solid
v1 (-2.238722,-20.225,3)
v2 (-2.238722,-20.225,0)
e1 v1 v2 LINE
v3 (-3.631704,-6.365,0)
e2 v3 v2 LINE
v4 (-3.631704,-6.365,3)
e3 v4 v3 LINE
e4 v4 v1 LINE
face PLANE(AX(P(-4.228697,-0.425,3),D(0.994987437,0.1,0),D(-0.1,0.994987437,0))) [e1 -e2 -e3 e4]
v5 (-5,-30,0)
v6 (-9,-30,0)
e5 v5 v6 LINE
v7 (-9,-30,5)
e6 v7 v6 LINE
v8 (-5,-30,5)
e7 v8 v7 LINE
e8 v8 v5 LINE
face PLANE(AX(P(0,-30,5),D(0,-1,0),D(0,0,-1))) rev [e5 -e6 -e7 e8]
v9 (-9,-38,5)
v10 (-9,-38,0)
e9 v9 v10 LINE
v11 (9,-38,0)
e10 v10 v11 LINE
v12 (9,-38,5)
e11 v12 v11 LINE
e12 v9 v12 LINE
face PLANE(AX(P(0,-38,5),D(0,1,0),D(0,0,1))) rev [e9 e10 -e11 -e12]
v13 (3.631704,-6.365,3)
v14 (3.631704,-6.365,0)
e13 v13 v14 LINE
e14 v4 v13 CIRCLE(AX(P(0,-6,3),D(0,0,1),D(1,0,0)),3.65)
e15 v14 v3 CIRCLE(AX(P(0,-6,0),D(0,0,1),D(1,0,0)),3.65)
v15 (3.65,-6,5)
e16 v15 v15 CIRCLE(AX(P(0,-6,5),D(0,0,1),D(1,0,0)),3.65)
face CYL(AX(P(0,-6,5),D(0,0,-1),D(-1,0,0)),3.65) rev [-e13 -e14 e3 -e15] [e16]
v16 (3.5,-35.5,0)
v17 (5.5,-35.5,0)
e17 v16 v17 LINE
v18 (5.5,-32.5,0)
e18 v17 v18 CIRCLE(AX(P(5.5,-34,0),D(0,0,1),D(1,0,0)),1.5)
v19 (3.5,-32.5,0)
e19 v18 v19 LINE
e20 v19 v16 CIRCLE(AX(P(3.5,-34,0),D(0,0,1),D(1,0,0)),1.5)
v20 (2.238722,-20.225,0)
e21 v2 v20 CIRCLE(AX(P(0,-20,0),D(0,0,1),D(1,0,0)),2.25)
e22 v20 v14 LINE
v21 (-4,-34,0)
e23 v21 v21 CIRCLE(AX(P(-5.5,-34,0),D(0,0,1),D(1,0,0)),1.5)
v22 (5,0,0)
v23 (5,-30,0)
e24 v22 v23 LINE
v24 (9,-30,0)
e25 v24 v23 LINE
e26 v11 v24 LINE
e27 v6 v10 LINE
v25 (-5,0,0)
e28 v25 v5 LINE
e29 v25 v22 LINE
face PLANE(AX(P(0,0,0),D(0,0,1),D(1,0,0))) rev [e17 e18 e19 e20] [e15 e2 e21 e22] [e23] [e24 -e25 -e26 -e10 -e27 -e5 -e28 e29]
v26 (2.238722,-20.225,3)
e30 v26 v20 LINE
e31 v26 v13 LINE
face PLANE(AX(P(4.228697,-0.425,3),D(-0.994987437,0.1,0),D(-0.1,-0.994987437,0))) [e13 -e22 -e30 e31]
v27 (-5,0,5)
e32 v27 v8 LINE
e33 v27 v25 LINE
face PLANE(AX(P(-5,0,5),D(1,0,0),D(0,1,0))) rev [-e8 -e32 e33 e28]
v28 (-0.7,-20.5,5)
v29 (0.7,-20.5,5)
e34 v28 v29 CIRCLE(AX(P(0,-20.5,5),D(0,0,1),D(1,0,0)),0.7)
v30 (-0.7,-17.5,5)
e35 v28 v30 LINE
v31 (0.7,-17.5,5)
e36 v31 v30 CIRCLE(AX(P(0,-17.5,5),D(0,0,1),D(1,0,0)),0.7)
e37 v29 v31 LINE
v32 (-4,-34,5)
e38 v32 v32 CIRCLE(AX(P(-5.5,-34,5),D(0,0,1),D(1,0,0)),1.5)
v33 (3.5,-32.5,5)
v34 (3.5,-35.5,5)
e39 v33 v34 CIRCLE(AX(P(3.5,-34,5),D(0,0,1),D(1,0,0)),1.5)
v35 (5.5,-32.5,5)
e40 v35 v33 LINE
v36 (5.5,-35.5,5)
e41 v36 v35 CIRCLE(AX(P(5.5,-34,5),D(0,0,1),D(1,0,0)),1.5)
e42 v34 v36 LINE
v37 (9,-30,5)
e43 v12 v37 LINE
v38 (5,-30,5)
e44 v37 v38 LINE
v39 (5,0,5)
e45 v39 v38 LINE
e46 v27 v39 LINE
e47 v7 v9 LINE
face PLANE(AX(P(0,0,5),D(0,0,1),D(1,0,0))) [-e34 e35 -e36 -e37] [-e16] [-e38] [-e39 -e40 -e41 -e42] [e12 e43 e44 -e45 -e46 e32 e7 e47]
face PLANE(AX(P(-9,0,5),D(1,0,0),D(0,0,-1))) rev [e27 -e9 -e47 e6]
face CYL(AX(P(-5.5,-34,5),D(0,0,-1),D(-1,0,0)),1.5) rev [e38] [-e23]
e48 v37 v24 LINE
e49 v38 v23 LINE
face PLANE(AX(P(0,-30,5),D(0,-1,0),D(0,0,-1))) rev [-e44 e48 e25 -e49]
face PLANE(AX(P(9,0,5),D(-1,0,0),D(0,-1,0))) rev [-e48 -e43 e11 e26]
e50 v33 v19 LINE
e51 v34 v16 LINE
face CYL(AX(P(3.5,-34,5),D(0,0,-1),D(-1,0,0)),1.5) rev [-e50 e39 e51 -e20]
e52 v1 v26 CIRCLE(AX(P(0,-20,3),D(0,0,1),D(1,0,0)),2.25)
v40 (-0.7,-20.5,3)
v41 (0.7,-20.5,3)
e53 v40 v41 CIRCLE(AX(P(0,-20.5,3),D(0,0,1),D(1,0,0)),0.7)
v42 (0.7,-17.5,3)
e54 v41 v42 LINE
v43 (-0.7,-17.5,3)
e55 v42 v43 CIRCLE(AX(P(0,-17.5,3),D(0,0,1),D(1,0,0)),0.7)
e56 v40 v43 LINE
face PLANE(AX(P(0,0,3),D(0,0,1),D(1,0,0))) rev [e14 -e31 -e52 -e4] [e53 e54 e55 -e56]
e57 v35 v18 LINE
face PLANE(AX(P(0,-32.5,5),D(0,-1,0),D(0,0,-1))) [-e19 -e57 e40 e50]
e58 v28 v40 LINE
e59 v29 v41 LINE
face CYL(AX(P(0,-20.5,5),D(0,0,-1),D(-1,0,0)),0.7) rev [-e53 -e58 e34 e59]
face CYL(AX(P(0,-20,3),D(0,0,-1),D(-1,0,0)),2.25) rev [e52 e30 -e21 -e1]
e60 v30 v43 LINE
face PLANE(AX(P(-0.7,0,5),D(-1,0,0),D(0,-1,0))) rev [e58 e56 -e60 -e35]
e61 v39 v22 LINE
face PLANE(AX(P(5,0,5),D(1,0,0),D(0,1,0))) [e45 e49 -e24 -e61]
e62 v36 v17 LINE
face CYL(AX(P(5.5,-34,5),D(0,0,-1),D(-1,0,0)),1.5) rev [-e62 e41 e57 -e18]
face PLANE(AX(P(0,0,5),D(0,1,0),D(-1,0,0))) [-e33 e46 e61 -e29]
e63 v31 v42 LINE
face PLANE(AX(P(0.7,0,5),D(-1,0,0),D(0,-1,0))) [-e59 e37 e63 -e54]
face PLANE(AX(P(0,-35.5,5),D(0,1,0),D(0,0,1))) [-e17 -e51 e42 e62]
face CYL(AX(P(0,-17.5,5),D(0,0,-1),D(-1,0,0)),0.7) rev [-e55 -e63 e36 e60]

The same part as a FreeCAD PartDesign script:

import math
import FreeCAD as App
import Part
import Sketcher
from FreeCAD import Vector

doc = App.newDocument("Part")
body = doc.addObject("PartDesign::Body", "Body")

sketch1 = doc.addObject("Sketcher::SketchObject", "Sketch")
body.addObject(sketch1)
sketch1.AttachmentSupport = (doc.XY_Plane, [""])
sketch1.MapMode = "FlatFace"
sketch1.addGeometry([
    Part.LineSegment(Vector(-5, 0, 0), Vector(-5, -30, 0)),
    Part.LineSegment(Vector(-5, -30, 0), Vector(-9, -30, 0)),
    Part.LineSegment(Vector(-9, -30, 0), Vector(-9, -38, 0)),
    Part.LineSegment(Vector(-9, -38, 0), Vector(9, -38, 0)),
    Part.LineSegment(Vector(9, -38, 0), Vector(9, -30, 0)),
    Part.LineSegment(Vector(9, -30, 0), Vector(5, -30, 0)),
    Part.LineSegment(Vector(5, -30, 0), Vector(5, 0, 0)),
    Part.LineSegment(Vector(5, 0, 0), Vector(-5, 0, 0)),
    Part.Circle(Vector(-5.5, -34, 0), Vector(0, 0, 1), 1.5),
    Part.LineSegment(Vector(3.5, -32.5, 0), Vector(5.5, -32.5, 0)),
    Part.ArcOfCircle(Part.Circle(Vector(5.5, -34, 0), Vector(0, 0, 1), 1.5), math.radians(-90), math.radians(90)),
    Part.LineSegment(Vector(5.5, -35.5, 0), Vector(3.5, -35.5, 0)),
    Part.ArcOfCircle(Part.Circle(Vector(3.5, -34, 0), Vector(0, 0, 1), 1.5), math.radians(90), math.radians(270)),
    Part.ArcOfCircle(Part.Circle(Vector(0, -20.5, 0), Vector(0, 0, 1), 0.7), math.radians(180), math.radians(360)),
    Part.LineSegment(Vector(-0.7, -20.5, 0), Vector(-0.7, -17.5, 0)),
    Part.ArcOfCircle(Part.Circle(Vector(0, -17.5, 0), Vector(0, 0, 1), 0.7), math.radians(0), math.radians(180)),
    Part.LineSegment(Vector(0.7, -17.5, 0), Vector(0.7, -20.5, 0)),
    Part.Circle(Vector(0, -6, 0), Vector(0, 0, 1), 3.6),
], False)
sketch1.addConstraint([
    Sketcher.Constraint("Coincident", 0, 2, 1, 1),
    Sketcher.Constraint("Coincident", 1, 2, 2, 1),
    Sketcher.Constraint("Coincident", 2, 2, 3, 1),
    Sketcher.Constraint("Coincident", 3, 2, 4, 1),
    Sketcher.Constraint("Coincident", 4, 2, 5, 1),
    Sketcher.Constraint("Coincident", 5, 2, 6, 1),
    Sketcher.Constraint("Coincident", 6, 2, 7, 1),
    Sketcher.Constraint("Coincident", 7, 2, 0, 1),
    Sketcher.Constraint("Tangent", 9, 2, 10, 2),
    Sketcher.Constraint("Tangent", 10, 1, 11, 1),
    Sketcher.Constraint("Tangent", 11, 2, 12, 2),
    Sketcher.Constraint("Tangent", 12, 1, 9, 1),
    Sketcher.Constraint("Tangent", 13, 1, 14, 1),
    Sketcher.Constraint("Tangent", 14, 2, 15, 2),
    Sketcher.Constraint("Tangent", 15, 1, 16, 1),
    Sketcher.Constraint("Tangent", 16, 2, 13, 2),
    Sketcher.Constraint("Vertical", 0),
    Sketcher.Constraint("Horizontal", 1),
    Sketcher.Constraint("Vertical", 2),
    Sketcher.Constraint("Horizontal", 3),
    Sketcher.Constraint("Vertical", 4),
    Sketcher.Constraint("Horizontal", 5),
    Sketcher.Constraint("Vertical", 6),
    Sketcher.Constraint("Horizontal", 7),
    Sketcher.Constraint("Horizontal", 9),
    Sketcher.Constraint("Horizontal", 11),
    Sketcher.Constraint("Vertical", 14),
    Sketcher.Constraint("Vertical", 16),
    Sketcher.Constraint("Equal", 8, 10),
    Sketcher.Constraint("Symmetric", 6, 2, 7, 2, -1, 1),
    Sketcher.Constraint("Symmetric", 8, 3, 10, 3, -2),
    Sketcher.Constraint("Symmetric", 1, 2, 4, 2, -2),
    Sketcher.Constraint("PointOnObject", 13, 3, -2),
    Sketcher.Constraint("PointOnObject", 17, 3, -2),
    Sketcher.Constraint("Diameter", 8, 3.0),
    Sketcher.Constraint("Diameter", 17, 7.3),
    Sketcher.Constraint("Radius", 13, 0.7),
    Sketcher.Constraint("DistanceX", 1, 2, 1, 1, 4.0),
    Sketcher.Constraint("DistanceX", 3, 1, 3, 2, 18.0),
    Sketcher.Constraint("DistanceX", 9, 1, 9, 2, 2.0),
    Sketcher.Constraint("DistanceY", 0, 2, 0, 1, 30.0),
    Sketcher.Constraint("DistanceY", 2, 2, 2, 1, 8.0),
    Sketcher.Constraint("DistanceY", 14, 1, 14, 2, 3.0),
    Sketcher.Constraint("DistanceY", 8, 3, -1, 1, 34.0),
    Sketcher.Constraint("DistanceY", 17, 3, -1, 1, 6.0),
    Sketcher.Constraint("DistanceX", 8, 3, 10, 3, 11.0),
    Sketcher.Constraint("DistanceY", 13, 3, -1, 1, 20.5),
])
pad1 = doc.addObject("PartDesign::Pad", "Pad")
body.addObject(pad1)
pad1.Profile = sketch1
pad1.Length = 5

sketch2 = doc.addObject("Sketcher::SketchObject", "Sketch001")
body.addObject(sketch2)
sketch2.AttachmentSupport = (doc.XY_Plane, [""])
sketch2.MapMode = "FlatFace"
sketch2.addGeometry([
    Part.ArcOfCircle(Part.Circle(Vector(0, -20, 0), Vector(0, 0, 1), 2.2), math.radians(-174), math.radians(-6)),
    Part.LineSegment(Vector(2.2, -20.2, 0), Vector(3.6, -6.4, 0)),
    Part.ArcOfCircle(Part.Circle(Vector(0, -6, 0), Vector(0, 0, 1), 3.6), math.radians(-174), math.radians(-6)),
    Part.LineSegment(Vector(-3.6, -6.4, 0), Vector(-2.2, -20.2, 0)),
    Part.LineSegment(Vector(0.7, -17.5, 0), Vector(0.7, -20.5, 0)),
    Part.ArcOfCircle(Part.Circle(Vector(0, -20.5, 0), Vector(0, 0, 1), 0.7), math.radians(180), math.radians(360)),
    Part.LineSegment(Vector(-0.7, -20.5, 0), Vector(-0.7, -17.5, 0)),
    Part.ArcOfCircle(Part.Circle(Vector(0, -17.5, 0), Vector(0, 0, 1), 0.7), math.radians(0), math.radians(180)),
], False)
sketch2.addConstraint([
    Sketcher.Constraint("Tangent", 0, 2, 1, 1),
    Sketcher.Constraint("Tangent", 1, 2, 2, 2),
    Sketcher.Constraint("Tangent", 2, 1, 3, 1),
    Sketcher.Constraint("Tangent", 3, 2, 0, 1),
    Sketcher.Constraint("Tangent", 4, 2, 5, 2),
    Sketcher.Constraint("Tangent", 5, 1, 6, 1),
    Sketcher.Constraint("Tangent", 6, 2, 7, 2),
    Sketcher.Constraint("Tangent", 7, 1, 4, 1),
    Sketcher.Constraint("Vertical", 4),
    Sketcher.Constraint("Vertical", 6),
    Sketcher.Constraint("Symmetric", 1, 2, 2, 1, -2),
    Sketcher.Constraint("PointOnObject", 5, 3, -2),
    Sketcher.Constraint("Radius", 5, 0.7),
    Sketcher.Constraint("DistanceY", 4, 2, 4, 1, 3.0),
    Sketcher.Constraint("Radius", 0, 2.25),
    Sketcher.Constraint("Radius", 2, 3.65),
    Sketcher.Constraint("DistanceY", 0, 3, -1, 1, 20.0),
    Sketcher.Constraint("DistanceY", 2, 3, -1, 1, 6.0),
    Sketcher.Constraint("DistanceY", 5, 3, -1, 1, 20.5),
])
pocket1 = doc.addObject("PartDesign::Pocket", "Pocket")
body.addObject(pocket1)
pocket1.Profile = sketch2
pocket1.Length = 3
pocket1.Reversed = True

doc.recompute()
